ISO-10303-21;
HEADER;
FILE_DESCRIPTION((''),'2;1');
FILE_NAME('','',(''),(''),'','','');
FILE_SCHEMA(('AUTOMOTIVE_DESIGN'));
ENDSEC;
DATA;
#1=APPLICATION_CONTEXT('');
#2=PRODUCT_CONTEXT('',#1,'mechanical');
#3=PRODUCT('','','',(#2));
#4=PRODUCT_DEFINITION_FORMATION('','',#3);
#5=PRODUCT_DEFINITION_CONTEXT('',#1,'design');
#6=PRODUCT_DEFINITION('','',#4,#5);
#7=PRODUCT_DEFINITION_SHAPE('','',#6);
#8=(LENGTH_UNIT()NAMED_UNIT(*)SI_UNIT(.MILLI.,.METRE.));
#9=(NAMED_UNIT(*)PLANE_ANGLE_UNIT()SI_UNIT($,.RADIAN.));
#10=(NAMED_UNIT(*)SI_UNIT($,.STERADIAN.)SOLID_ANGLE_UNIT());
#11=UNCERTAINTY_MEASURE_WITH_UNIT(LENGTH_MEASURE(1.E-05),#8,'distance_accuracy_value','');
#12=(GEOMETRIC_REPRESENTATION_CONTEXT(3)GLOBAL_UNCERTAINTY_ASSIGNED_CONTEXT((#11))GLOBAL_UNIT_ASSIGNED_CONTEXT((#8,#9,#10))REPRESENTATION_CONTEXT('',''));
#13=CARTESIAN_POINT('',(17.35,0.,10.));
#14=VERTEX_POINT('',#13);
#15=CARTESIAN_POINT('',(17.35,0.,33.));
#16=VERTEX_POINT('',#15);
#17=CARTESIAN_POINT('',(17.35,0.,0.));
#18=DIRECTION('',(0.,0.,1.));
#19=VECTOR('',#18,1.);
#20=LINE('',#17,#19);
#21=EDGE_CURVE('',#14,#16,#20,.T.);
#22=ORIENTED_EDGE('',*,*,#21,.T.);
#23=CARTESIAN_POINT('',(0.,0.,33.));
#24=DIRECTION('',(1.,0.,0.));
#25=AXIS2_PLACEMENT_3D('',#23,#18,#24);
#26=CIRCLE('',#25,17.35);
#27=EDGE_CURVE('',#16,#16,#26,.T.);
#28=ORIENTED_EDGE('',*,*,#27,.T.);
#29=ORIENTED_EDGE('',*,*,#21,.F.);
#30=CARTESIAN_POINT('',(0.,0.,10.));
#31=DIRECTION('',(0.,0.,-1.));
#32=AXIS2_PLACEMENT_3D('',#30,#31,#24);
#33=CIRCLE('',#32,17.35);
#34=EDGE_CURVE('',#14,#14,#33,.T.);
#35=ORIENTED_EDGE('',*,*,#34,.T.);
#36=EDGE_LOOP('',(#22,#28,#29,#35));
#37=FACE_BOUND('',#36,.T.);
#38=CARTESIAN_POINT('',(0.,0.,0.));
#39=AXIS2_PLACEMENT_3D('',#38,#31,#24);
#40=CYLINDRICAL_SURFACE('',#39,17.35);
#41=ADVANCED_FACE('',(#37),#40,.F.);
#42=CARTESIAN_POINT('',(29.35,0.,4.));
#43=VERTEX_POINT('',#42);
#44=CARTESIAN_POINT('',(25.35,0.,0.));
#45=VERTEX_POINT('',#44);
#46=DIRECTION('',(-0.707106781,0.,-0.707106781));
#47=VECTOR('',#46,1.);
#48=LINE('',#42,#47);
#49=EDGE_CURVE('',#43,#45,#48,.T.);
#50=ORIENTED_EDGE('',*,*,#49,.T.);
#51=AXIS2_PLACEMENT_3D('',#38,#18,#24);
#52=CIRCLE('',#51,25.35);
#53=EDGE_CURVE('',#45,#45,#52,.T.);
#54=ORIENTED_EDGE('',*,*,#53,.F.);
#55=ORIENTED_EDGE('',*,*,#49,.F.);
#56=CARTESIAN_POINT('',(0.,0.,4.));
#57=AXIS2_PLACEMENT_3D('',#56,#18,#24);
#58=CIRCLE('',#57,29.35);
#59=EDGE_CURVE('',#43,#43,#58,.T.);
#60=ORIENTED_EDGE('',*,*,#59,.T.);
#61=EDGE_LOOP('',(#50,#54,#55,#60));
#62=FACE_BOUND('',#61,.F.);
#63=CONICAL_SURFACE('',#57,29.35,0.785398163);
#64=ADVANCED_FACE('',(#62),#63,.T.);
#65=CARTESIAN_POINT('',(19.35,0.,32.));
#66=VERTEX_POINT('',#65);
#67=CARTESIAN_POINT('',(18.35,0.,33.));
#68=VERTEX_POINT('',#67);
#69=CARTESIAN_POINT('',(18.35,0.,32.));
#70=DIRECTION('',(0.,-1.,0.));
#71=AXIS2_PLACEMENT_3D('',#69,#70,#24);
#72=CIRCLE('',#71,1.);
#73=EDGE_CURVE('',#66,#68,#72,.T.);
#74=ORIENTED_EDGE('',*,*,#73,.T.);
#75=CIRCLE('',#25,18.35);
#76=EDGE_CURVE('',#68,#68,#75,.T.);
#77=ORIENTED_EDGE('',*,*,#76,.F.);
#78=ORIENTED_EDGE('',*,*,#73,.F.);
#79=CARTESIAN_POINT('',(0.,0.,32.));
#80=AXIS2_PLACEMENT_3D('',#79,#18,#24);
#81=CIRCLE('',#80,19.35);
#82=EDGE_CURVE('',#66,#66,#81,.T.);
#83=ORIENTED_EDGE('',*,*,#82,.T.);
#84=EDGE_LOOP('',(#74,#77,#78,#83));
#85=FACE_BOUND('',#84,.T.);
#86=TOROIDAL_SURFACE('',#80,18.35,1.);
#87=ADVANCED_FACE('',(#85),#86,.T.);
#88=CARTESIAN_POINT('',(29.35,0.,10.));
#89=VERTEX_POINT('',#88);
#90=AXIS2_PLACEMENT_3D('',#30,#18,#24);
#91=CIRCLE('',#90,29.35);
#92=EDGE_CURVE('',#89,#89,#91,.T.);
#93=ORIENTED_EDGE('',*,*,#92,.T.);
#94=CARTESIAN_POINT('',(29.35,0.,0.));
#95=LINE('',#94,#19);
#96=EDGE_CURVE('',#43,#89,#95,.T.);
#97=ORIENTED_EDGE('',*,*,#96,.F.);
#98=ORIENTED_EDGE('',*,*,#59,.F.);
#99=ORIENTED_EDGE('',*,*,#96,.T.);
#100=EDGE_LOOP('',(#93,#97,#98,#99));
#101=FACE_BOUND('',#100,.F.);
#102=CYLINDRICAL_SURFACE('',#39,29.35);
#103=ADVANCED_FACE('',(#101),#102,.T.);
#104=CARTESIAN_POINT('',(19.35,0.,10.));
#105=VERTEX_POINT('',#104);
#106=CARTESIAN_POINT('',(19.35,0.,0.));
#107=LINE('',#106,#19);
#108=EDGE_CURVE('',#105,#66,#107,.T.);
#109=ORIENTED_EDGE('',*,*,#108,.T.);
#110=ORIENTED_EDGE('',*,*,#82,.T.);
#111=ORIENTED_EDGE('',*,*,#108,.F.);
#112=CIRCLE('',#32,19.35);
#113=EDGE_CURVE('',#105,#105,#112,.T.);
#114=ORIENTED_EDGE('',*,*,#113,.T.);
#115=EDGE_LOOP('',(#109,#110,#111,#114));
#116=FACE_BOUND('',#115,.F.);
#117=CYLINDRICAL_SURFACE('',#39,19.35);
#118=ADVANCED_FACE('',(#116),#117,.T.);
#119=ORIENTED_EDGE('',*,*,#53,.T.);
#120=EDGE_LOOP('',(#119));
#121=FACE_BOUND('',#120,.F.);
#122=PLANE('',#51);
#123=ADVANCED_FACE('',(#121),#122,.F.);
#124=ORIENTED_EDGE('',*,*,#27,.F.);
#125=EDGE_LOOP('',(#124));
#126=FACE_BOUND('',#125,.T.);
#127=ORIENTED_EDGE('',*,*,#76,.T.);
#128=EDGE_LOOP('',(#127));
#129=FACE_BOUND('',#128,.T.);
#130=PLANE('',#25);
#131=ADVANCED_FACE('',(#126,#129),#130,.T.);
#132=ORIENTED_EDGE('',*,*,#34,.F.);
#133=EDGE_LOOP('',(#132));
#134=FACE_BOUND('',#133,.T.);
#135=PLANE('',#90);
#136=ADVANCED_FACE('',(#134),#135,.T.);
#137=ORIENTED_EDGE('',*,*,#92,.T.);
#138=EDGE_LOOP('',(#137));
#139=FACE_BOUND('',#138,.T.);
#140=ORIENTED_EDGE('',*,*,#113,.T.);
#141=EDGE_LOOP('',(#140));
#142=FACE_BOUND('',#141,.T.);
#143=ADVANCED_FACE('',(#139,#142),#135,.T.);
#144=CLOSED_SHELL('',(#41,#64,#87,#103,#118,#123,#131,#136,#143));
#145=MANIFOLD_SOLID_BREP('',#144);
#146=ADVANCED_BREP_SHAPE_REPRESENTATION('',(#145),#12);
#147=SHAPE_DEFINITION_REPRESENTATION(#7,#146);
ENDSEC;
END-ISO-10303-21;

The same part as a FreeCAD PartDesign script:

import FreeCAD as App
import Part
import Sketcher


def edges_at(feature, points):
    """Names of the edges that pass closest to the given points."""
    edges = feature.Shape.Edges
    near = lambda p: min(range(len(edges)), key=lambda i: edges[i].distToShape(Part.Vertex(*p))[0])
    return sorted({f"Edge{near(p) + 1}" for p in points})

doc = App.newDocument("Part")
body = doc.addObject("PartDesign::Body", "Body")

# Sketch on XY plane
sketch1 = doc.addObject("Sketcher::SketchObject", "Sketch")
body.addObject(sketch1)
sketch1.AttachmentSupport = (doc.XY_Plane, [""])
sketch1.MapMode = "FlatFace"
sketch1.addGeometry(Part.Circle(App.Vector(0, 0, 0), App.Vector(0, 0, 1), 29.35), False)
sketch1.addConstraint(Sketcher.Constraint("Coincident", 0, 3, -1, 1))
sketch1.addConstraint(Sketcher.Constraint("Diameter", 0, 58.7))
pad1 = doc.addObject("PartDesign::Pad", "Pad")
body.addObject(pad1)
pad1.Profile = sketch1
pad1.Length = 10
doc.recompute()

chamfer = doc.addObject("PartDesign::Chamfer", "Chamfer")
body.addObject(chamfer)
chamfer.Base = (pad1, edges_at(pad1, [(-29.35, 0, 0)]))
chamfer.Size = 4

# Sketch on XY plane
sketch2 = doc.addObject("Sketcher::SketchObject", "Sketch001")
body.addObject(sketch2)
sketch2.AttachmentSupport = (doc.XY_Plane, [""])
sketch2.MapMode = "FlatFace"
sketch2.addGeometry(Part.Circle(App.Vector(0, 0, 0), App.Vector(0, 0, 1), 19.35), False)
sketch2.addGeometry(Part.Circle(App.Vector(0, 0, 0), App.Vector(0, 0, 1), 17.35), False)
sketch2.addConstraint(Sketcher.Constraint("Coincident", 0, 3, -1, 1))
sketch2.addConstraint(Sketcher.Constraint("Coincident", 1, 3, -1, 1))
sketch2.addConstraint(Sketcher.Constraint("Diameter", 0, 38.7))
sketch2.addConstraint(Sketcher.Constraint("Diameter", 1, 34.7))
pad2 = doc.addObject("PartDesign::Pad", "Pad001")
body.addObject(pad2)
pad2.Profile = sketch2
pad2.Length = 33
doc.recompute()

fillet = doc.addObject("PartDesign::Fillet", "Fillet")
body.addObject(fillet)
fillet.Base = (pad2, edges_at(pad2, [(-19.35, 0, 33)]))
fillet.Radius = 1

doc.recompute()
